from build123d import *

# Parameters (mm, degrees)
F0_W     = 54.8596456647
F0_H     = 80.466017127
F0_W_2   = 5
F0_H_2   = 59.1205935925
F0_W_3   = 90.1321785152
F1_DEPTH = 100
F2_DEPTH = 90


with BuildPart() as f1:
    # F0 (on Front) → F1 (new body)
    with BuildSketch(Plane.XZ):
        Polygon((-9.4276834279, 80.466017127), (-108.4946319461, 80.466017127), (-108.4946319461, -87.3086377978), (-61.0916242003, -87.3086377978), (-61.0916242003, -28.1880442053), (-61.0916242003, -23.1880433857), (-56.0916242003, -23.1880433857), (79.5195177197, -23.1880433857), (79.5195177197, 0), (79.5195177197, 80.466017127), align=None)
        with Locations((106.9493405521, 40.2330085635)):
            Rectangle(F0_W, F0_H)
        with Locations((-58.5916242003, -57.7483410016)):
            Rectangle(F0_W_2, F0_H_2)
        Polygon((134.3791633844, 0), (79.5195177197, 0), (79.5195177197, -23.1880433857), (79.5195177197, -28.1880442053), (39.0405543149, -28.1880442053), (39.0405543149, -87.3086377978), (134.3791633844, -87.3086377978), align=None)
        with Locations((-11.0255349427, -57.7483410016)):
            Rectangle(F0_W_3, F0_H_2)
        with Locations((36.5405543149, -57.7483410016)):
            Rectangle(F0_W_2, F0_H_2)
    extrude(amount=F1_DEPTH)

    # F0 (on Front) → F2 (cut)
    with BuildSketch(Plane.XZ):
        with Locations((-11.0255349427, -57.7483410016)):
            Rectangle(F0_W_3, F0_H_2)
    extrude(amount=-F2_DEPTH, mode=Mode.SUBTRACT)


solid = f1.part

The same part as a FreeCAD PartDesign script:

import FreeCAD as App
import Part
import Sketcher

doc = App.newDocument("Part")
params = doc.addObject("Spreadsheet::Sheet", "Params")
for row, (alias, value) in enumerate([
    ("sketch1_height", "5.000001 mm"),
    ("pad1_length", "100 mm"),
    ("pocket1_length", "90 mm"),
], start=1):
    params.set(f"A{row}", alias)
    params.set(f"B{row}", "=" + value)
    params.setAlias(f"B{row}", alias)

body = doc.addObject("PartDesign::Body", "Body")

# Sketch on XZ plane
sketch1 = body.newObject("Sketcher::SketchObject", "Sketch")
sketch1.AttachmentSupport = (doc.getObject("XZ_Plane"), [""])
sketch1.MapMode = "FlatFace"
sketch1.addGeometry([
    Part.LineSegment(App.Vector(-108, 80, 0), App.Vector(-108, -87, 0)),  # 0
    Part.LineSegment(App.Vector(-108, -87, 0), App.Vector(134, -87, 0)),  # 1
    Part.LineSegment(App.Vector(134, -87, 0), App.Vector(134, 80, 0)),  # 2
    Part.LineSegment(App.Vector(134, 80, 0), App.Vector(-108, 80, 0)),  # 3
    Part.LineSegment(App.Vector(-61, -28, 0), App.Vector(-61, -23, 0)),  # 4
    Part.LineSegment(App.Vector(-61, -23, 0), App.Vector(80, -23, 0)),  # 5
    Part.LineSegment(App.Vector(80, -23, 0), App.Vector(80, -28, 0)),  # 6
    Part.LineSegment(App.Vector(80, -28, 0), App.Vector(39, -28, 0)),  # 7
    Part.LineSegment(App.Vector(39, -28, 0), App.Vector(-61, -28, 0)),  # 8
], False)
sketch1.addConstraint([
    Sketcher.Constraint("Coincident", 0, 2, 1, 1),
    Sketcher.Constraint("Coincident", 1, 2, 2, 1),
    Sketcher.Constraint("Coincident", 2, 2, 3, 1),
    Sketcher.Constraint("Coincident", 3, 2, 0, 1),
    Sketcher.Constraint("Coincident", 4, 2, 5, 1),
    Sketcher.Constraint("Coincident", 5, 2, 6, 1),
    Sketcher.Constraint("Coincident", 6, 2, 7, 1),
    Sketcher.Constraint("Coincident", 7, 2, 8, 1),
    Sketcher.Constraint("Coincident", 8, 2, 4, 1),
    Sketcher.Constraint("Vertical", 0),
    Sketcher.Constraint("Horizontal", 1),
    Sketcher.Constraint("Vertical", 2),
    Sketcher.Constraint("Horizontal", 3),
    Sketcher.Constraint("Vertical", 4),
    Sketcher.Constraint("Horizontal", 5),
    Sketcher.Constraint("Vertical", 6),
    Sketcher.Constraint("Horizontal", 7),
    Sketcher.Constraint("Horizontal", 8),
    Sketcher.Constraint("DistanceY", 4, 1, 4, 2, 5.000001),
    Sketcher.Constraint("DistanceX", 5, 1, 5, 2, 140.611142),
    Sketcher.Constraint("DistanceX", 8, 2, 8, 1, 100.132179),
    Sketcher.Constraint("DistanceX", 1, 1, 1, 2, 242.873795),
    Sketcher.Constraint("DistanceY", 0, 2, 0, 1, 167.774655),
    Sketcher.Constraint("DistanceX", 0, 2, -1, 1, 108.494632),
    Sketcher.Constraint("DistanceY", 4, 2, 3, 2, 103.654061),
    Sketcher.Constraint("DistanceX", 0, 2, 5, 2, 188.01415),
    Sketcher.Constraint("DistanceY", 0, 2, -1, 1, 87.308638),
])
sketch1.setExpression("Constraints[18]", "Params.sketch1_height")
pad1 = body.newObject("PartDesign::Pad", "Pad")
pad1.Profile = sketch1
pad1.setExpression("Length", "Params.pad1_length")

# Sketch on XZ plane
sketch2 = body.newObject("Sketcher::SketchObject", "Sketch001")
sketch2.AttachmentSupport = (doc.getObject("XZ_Plane"), [""])
sketch2.MapMode = "FlatFace"
sketch2.addGeometry([
    Part.LineSegment(App.Vector(-56, -28, 0), App.Vector(-56, -87, 0)),
    Part.LineSegment(App.Vector(-56, -87, 0), App.Vector(34, -87, 0)),
    Part.LineSegment(App.Vector(34, -87, 0), App.Vector(34, -28, 0)),
    Part.LineSegment(App.Vector(34, -28, 0), App.Vector(-56, -28, 0)),
], False)
sketch2.addConstraint([
    Sketcher.Constraint("Coincident", 0, 2, 1, 1),
    Sketcher.Constraint("Coincident", 1, 2, 2, 1),
    Sketcher.Constraint("Coincident", 2, 2, 3, 1),
    Sketcher.Constraint("Coincident", 3, 2, 0, 1),
    Sketcher.Constraint("Vertical", 0),
    Sketcher.Constraint("Horizontal", 1),
    Sketcher.Constraint("Vertical", 2),
    Sketcher.Constraint("Horizontal", 3),
    Sketcher.Constraint("DistanceX", 1, 1, 1, 2, 90.132179),
    Sketcher.Constraint("DistanceY", 0, 2, 0, 1, 59.120594),
    Sketcher.Constraint("DistanceX", 0, 2, -1, 1, 56.091624),
    Sketcher.Constraint("DistanceY", 0, 2, -1, 1, 87.308638),
])
pocket1 = body.newObject("PartDesign::Pocket", "Pocket")
pocket1.Profile = sketch2
pocket1.setExpression("Length", "Params.pocket1_length")

doc.recompute()
